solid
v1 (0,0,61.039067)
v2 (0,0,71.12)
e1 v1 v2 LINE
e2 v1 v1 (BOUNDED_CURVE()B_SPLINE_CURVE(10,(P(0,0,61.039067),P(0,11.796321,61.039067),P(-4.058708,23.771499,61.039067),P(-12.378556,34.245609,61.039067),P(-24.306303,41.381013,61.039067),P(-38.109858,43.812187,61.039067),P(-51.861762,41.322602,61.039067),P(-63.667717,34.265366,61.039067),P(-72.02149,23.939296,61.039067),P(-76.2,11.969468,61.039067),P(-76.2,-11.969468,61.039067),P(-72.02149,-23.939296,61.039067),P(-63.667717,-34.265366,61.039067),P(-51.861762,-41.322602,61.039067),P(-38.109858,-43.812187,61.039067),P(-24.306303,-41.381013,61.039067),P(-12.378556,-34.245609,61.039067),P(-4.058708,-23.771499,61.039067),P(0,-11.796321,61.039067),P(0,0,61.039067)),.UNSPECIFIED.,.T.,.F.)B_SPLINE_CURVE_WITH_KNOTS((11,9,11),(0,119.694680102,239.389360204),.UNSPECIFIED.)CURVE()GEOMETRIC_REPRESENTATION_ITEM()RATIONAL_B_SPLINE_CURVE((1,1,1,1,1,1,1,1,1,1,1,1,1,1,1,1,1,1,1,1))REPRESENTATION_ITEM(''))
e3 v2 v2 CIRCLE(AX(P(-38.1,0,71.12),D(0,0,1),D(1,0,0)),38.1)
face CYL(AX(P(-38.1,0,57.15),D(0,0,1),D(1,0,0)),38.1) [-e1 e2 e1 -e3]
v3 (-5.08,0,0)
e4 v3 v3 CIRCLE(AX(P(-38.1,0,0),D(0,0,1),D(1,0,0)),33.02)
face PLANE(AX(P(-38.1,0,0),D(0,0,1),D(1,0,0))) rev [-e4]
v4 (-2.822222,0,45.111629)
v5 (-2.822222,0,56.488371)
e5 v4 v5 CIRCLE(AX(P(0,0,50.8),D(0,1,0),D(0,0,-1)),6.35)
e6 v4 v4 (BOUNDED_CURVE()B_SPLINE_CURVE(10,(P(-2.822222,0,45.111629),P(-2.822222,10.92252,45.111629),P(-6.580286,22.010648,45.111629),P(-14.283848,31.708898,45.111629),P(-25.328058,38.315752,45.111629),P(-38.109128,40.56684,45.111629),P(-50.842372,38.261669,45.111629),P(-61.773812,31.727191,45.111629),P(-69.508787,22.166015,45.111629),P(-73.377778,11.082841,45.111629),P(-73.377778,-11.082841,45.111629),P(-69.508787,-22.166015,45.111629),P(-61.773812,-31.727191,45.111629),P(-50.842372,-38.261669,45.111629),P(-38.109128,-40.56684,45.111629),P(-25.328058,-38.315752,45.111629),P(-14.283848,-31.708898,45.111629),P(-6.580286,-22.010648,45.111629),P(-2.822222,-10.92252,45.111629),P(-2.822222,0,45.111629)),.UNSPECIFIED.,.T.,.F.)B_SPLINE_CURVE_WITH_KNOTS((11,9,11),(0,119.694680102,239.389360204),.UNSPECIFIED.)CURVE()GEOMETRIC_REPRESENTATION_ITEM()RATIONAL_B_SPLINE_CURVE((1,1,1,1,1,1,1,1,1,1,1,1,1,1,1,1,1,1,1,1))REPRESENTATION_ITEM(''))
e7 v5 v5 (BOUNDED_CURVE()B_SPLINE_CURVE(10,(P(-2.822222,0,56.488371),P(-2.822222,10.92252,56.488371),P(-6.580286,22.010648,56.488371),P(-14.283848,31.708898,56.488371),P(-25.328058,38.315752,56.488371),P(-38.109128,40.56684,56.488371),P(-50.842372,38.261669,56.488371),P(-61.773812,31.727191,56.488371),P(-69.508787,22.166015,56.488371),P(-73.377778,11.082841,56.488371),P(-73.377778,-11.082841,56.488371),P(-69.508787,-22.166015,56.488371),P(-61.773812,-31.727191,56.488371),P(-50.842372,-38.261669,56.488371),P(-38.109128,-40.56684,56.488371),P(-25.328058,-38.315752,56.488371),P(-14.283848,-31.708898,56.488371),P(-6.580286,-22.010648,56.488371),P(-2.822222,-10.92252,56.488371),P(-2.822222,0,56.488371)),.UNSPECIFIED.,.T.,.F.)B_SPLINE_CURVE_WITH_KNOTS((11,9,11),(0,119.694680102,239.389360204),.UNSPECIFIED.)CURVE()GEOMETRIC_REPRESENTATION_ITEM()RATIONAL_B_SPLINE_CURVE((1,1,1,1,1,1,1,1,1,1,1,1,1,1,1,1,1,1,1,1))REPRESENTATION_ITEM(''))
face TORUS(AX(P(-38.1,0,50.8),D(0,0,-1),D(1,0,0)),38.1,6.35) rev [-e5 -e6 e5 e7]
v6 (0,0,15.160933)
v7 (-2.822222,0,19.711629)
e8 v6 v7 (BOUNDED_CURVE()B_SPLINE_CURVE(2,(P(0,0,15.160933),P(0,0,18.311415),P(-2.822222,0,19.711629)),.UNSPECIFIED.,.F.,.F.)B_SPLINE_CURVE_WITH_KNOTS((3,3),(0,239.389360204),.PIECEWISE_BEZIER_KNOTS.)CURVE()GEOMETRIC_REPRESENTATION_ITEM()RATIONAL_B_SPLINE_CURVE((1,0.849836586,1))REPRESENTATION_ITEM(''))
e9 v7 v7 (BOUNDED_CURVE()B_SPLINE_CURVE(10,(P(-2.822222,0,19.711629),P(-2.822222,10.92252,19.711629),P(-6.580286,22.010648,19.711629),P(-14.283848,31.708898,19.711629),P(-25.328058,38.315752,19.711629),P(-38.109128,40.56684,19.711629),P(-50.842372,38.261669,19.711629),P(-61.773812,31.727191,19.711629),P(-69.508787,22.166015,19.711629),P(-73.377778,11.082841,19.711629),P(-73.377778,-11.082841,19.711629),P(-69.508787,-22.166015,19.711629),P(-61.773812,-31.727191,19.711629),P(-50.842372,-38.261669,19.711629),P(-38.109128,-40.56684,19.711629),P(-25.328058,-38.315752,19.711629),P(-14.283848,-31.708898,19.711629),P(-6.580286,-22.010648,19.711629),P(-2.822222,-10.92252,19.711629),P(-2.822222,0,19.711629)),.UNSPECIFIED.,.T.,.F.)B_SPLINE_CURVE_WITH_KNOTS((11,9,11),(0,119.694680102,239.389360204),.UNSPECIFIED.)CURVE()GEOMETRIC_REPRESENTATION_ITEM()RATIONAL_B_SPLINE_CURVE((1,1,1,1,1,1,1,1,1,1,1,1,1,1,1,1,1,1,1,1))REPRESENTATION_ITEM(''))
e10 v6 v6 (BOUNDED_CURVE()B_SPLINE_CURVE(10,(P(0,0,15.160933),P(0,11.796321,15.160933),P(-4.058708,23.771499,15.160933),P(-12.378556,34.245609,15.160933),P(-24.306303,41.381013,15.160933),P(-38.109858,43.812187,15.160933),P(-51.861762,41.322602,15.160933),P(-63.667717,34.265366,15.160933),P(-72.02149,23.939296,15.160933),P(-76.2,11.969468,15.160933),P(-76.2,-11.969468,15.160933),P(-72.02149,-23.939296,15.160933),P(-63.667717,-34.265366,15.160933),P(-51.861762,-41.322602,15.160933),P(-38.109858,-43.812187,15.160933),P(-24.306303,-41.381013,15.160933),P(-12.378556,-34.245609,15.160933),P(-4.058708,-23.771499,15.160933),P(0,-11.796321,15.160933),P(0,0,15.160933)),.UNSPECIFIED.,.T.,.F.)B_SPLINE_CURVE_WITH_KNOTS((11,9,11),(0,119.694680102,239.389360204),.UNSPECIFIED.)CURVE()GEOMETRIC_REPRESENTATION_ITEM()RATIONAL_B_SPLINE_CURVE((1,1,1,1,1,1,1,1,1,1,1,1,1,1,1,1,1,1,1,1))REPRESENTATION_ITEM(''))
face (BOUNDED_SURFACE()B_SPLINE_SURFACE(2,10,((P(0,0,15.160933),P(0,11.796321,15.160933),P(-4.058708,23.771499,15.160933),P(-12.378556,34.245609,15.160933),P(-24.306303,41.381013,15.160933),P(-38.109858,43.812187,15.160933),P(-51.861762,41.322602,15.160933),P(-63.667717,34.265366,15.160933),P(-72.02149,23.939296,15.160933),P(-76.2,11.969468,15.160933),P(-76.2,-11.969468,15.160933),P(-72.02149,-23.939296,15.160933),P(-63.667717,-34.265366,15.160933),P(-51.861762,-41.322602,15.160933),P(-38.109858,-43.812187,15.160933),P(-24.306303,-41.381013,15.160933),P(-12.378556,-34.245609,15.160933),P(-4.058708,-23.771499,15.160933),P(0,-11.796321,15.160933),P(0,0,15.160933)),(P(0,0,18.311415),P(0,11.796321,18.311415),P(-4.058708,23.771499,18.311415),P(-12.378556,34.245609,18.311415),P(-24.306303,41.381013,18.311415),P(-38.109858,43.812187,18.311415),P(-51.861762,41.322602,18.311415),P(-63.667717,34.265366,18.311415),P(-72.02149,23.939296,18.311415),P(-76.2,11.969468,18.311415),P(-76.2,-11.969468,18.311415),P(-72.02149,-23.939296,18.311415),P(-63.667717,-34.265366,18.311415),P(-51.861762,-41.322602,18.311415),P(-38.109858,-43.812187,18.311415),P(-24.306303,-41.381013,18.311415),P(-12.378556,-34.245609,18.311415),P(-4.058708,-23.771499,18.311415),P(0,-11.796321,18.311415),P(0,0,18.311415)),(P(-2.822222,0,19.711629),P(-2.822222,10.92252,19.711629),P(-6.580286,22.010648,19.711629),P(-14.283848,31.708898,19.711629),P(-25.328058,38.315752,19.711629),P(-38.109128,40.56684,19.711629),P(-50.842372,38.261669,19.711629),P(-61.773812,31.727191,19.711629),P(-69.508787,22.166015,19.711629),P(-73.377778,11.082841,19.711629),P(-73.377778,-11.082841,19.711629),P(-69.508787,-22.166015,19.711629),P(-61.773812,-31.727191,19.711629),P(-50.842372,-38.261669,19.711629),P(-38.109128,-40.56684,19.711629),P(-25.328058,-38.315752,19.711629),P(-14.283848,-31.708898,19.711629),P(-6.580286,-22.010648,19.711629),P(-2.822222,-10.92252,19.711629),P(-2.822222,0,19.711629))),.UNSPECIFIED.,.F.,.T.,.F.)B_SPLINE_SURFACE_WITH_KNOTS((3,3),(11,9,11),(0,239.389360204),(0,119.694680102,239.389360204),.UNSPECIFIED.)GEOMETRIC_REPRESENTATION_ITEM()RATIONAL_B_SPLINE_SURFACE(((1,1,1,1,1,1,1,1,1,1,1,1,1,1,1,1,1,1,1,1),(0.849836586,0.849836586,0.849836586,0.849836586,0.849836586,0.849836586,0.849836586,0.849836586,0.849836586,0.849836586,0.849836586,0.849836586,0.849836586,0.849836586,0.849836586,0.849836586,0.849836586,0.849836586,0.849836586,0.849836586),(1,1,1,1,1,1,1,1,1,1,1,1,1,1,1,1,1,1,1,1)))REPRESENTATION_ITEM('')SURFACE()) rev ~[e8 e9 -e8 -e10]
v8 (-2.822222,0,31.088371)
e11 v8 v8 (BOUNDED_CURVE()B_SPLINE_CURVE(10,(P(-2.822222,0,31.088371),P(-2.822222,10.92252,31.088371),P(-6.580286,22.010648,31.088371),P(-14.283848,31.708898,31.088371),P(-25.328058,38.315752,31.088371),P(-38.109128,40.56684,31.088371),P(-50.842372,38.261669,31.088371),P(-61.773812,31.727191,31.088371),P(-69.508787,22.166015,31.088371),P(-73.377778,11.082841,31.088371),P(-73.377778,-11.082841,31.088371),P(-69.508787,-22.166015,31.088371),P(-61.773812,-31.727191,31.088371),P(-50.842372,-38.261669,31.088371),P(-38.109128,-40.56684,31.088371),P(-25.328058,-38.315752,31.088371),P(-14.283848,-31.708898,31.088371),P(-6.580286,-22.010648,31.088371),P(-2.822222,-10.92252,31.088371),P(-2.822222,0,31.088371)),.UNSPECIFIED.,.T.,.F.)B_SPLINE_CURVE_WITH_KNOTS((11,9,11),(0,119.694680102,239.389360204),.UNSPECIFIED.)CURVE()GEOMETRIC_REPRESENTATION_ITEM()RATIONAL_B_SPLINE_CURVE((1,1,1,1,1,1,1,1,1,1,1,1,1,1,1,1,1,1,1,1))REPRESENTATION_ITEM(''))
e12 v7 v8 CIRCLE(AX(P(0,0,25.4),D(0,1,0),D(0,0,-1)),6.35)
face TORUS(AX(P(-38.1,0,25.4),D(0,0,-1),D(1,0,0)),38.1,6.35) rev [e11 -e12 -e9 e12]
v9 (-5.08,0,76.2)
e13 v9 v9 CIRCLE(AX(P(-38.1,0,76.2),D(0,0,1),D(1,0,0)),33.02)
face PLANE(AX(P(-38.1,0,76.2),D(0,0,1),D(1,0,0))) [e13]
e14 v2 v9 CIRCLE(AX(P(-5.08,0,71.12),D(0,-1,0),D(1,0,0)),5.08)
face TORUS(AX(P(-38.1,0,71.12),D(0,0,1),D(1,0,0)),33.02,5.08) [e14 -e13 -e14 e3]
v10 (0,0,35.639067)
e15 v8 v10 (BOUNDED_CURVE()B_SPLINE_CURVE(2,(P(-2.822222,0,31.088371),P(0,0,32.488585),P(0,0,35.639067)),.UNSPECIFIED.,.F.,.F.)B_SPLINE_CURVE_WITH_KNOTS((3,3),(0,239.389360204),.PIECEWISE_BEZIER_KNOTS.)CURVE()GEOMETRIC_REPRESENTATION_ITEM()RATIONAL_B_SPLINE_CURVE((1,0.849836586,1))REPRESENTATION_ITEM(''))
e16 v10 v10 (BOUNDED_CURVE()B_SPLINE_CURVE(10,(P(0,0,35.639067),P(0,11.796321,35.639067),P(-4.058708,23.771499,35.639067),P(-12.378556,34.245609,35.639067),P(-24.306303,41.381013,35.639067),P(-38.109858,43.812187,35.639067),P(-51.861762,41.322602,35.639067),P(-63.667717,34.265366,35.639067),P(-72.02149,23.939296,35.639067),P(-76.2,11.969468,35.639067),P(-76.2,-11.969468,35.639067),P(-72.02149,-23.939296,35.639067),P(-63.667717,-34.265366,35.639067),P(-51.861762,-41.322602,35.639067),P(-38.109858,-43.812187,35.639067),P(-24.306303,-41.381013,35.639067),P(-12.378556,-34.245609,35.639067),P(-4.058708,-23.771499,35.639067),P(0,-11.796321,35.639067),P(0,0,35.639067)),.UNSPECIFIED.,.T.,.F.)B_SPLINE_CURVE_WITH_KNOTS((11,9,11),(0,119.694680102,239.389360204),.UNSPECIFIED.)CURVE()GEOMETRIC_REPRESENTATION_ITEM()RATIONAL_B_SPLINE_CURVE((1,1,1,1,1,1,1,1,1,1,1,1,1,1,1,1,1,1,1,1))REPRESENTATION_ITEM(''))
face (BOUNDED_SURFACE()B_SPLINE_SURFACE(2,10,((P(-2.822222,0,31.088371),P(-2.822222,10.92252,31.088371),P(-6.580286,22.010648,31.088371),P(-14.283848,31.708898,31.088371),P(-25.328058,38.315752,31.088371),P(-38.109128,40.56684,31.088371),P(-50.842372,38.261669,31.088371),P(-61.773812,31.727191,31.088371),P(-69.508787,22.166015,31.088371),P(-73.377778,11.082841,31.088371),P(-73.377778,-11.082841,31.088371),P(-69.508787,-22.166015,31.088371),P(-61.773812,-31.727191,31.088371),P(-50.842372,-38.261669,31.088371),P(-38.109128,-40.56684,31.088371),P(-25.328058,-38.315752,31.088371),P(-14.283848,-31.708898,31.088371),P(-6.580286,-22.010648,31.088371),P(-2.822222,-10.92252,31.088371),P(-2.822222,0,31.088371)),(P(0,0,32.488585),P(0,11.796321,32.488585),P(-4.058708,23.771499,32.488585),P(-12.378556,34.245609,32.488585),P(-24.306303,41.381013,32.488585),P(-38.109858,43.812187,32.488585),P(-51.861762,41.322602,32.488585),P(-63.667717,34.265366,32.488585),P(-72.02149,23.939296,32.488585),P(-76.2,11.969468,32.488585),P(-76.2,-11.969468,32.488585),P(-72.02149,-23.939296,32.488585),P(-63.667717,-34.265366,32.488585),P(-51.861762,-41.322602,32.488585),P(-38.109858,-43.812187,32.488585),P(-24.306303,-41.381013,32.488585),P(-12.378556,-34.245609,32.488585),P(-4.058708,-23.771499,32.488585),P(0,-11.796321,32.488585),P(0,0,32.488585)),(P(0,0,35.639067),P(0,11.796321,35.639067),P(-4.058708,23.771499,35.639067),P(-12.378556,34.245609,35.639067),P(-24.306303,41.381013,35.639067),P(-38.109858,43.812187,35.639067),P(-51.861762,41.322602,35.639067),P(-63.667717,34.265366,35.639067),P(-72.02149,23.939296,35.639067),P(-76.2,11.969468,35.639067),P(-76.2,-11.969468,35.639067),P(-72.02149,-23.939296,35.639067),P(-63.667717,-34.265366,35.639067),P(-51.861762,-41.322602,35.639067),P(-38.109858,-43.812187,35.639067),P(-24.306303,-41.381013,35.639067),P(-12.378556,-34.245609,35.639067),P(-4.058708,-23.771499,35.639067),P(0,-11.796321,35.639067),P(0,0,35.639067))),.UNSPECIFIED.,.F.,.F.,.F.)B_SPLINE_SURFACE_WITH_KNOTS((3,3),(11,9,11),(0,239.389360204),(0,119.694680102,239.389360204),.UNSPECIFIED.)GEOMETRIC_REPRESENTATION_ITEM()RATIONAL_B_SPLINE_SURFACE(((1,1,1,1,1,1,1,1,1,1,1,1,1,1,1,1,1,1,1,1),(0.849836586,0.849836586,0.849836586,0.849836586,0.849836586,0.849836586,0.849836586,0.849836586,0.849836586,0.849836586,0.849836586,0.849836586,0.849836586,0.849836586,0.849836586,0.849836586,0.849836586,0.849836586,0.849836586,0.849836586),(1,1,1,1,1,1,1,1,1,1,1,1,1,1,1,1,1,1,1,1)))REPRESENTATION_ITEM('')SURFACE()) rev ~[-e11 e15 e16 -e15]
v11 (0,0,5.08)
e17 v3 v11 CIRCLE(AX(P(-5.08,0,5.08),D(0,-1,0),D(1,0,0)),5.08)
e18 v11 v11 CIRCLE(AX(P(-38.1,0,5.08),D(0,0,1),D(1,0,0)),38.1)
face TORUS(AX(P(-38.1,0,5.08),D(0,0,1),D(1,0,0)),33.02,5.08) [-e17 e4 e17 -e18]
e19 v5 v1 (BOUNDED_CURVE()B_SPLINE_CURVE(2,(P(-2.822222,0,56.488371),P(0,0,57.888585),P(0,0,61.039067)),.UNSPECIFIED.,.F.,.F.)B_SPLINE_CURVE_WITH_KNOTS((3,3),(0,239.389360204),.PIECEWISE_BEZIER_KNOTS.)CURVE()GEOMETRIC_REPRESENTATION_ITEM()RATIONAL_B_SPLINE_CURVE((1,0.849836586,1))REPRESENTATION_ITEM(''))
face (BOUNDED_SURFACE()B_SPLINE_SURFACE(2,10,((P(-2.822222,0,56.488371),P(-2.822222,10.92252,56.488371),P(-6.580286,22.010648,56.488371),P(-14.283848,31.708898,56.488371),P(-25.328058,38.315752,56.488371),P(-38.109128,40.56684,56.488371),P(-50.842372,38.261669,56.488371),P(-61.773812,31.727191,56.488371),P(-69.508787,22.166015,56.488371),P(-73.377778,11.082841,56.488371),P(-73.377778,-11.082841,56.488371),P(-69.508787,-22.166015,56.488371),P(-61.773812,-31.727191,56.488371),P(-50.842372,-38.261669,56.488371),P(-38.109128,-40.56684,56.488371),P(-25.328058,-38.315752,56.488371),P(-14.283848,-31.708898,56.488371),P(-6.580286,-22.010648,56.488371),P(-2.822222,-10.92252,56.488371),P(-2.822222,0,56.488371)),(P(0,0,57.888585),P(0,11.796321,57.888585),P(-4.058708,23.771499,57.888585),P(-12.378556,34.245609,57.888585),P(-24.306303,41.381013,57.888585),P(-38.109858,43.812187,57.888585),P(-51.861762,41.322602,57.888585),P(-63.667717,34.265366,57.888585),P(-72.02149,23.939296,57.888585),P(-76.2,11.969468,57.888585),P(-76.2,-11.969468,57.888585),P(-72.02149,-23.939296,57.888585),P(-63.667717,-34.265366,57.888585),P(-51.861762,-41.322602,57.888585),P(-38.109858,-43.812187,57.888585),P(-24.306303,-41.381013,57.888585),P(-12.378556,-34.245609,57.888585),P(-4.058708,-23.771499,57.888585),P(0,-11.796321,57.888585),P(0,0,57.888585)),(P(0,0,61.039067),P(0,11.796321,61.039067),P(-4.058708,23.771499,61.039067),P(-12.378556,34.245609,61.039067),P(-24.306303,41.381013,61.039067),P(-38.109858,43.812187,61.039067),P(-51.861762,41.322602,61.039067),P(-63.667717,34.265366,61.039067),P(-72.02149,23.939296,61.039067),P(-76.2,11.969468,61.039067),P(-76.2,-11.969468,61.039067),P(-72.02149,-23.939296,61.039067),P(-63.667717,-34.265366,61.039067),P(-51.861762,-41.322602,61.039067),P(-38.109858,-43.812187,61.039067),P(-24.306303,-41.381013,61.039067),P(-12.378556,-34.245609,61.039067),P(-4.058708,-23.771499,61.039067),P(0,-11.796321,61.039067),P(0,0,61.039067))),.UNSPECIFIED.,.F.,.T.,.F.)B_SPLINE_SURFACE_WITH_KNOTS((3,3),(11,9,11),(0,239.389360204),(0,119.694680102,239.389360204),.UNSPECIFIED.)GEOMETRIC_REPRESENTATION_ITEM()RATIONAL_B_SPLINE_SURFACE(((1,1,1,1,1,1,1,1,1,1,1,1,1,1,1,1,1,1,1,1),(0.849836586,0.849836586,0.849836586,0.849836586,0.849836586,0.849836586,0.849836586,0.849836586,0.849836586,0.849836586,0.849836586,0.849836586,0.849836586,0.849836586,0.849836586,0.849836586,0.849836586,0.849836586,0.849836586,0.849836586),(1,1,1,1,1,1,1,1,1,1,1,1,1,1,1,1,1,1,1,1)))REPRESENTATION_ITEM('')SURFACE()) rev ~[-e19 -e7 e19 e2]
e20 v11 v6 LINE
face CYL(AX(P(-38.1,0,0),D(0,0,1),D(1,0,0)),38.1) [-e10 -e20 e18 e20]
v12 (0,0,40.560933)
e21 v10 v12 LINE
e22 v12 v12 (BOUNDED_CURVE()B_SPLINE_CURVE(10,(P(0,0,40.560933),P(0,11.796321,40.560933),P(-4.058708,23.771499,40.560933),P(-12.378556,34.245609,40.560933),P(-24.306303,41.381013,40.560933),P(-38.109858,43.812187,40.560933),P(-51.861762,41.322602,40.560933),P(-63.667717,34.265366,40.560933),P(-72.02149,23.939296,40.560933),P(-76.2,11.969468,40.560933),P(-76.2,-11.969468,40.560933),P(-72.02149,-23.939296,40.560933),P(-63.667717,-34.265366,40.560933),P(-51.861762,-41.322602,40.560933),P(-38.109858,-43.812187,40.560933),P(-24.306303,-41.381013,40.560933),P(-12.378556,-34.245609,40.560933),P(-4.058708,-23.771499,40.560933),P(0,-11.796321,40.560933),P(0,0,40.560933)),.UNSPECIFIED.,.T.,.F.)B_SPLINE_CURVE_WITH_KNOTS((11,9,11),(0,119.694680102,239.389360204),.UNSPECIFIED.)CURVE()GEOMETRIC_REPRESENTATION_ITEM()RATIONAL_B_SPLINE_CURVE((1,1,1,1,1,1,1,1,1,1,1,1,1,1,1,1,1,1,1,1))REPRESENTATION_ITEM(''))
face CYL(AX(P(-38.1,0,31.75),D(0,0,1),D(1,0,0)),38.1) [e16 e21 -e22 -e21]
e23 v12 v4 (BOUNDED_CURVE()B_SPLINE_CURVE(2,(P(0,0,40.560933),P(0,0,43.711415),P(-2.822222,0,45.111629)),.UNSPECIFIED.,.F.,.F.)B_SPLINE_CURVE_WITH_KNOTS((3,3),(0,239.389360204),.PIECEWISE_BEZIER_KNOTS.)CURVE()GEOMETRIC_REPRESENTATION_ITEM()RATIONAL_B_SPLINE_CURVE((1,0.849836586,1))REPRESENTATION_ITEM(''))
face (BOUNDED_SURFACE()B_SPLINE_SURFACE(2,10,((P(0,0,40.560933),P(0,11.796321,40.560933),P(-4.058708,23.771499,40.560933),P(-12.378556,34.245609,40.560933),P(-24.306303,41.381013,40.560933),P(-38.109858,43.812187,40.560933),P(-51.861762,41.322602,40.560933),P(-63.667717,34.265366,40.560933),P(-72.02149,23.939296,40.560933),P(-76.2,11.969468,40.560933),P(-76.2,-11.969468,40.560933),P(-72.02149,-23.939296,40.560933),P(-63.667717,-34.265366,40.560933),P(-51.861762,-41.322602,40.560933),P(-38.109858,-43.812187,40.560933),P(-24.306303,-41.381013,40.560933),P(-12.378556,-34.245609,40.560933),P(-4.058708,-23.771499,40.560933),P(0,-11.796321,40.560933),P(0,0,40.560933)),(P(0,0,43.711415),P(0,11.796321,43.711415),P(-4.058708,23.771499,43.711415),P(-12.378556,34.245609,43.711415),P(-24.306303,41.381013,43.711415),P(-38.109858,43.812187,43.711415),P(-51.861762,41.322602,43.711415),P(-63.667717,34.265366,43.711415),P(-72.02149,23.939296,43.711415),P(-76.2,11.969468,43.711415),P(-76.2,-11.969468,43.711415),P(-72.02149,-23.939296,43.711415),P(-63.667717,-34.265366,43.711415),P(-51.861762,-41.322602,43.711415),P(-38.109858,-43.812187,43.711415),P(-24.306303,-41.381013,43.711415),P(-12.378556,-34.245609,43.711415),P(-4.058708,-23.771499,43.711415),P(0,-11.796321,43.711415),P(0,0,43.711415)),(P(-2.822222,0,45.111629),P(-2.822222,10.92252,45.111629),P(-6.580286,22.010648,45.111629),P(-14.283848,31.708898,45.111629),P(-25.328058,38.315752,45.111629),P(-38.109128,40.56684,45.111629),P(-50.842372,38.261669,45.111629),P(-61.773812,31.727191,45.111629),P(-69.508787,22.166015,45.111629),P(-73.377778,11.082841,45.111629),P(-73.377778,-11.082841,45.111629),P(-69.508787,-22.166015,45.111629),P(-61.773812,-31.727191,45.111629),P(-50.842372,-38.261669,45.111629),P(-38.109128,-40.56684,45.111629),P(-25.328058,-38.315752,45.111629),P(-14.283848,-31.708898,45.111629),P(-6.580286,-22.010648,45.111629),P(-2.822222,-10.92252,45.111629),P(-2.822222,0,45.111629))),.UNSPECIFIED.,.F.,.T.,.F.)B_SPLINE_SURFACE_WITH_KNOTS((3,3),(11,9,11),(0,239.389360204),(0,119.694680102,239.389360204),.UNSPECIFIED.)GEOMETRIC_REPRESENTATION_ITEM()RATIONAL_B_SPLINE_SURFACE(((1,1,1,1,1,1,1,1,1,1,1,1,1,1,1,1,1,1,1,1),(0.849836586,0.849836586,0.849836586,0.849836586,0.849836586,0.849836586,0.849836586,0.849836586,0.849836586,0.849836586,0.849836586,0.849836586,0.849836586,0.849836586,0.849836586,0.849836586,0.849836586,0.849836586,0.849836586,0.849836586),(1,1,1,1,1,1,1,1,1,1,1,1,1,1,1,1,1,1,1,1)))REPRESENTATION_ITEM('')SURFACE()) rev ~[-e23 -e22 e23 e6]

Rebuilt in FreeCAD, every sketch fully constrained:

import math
import FreeCAD as App
import Part
import Sketcher

V = App.Vector
Q = App.Units.Quantity


def edges_at(feature, points):
    """Names of the edges that pass closest to the given points."""
    edges = feature.Shape.Edges
    near = lambda p: min(range(len(edges)), key=lambda i: edges[i].distToShape(Part.Vertex(*p))[0])
    return sorted({f"Edge{near(p) + 1}" for p in points})

doc = App.newDocument("Part")
body = doc.addObject("PartDesign::Body", "Body")

sketch1 = body.newObject("Sketcher::SketchObject", "Sketch")
sketch1.AttachmentSupport = (doc.getObject("XZ_Plane"), [""])
sketch1.MapMode = "FlatFace"
sketch1.addGeometry([
    Part.LineSegment(V(-38, 0, 0), V(0, 0, 0)),
    Part.LineSegment(V(0, 0, 0), V(0, 19, 0)),
    Part.ArcOfCircle(Part.Circle(V(0, 25, 0), V(0, 0, 1), 6), math.radians(90), math.radians(270)),
    Part.LineSegment(V(0, 32, 0), V(0, 44, 0)),
    Part.ArcOfCircle(Part.Circle(V(0, 51, 0), V(0, 0, 1), 6), math.radians(90), math.radians(270)),
    Part.LineSegment(V(0, 57, 0), V(0, 76, 0)),
    Part.LineSegment(V(0, 76, 0), V(-38, 76, 0)),
    Part.LineSegment(V(-38, 76, 0), V(-38, 0, 0)),
], False)
sketch1.addGeometry(Part.LineSegment(V(-38, 0, 0), V(-38, 76, 0)), True)
sketch1.addConstraint([
    Sketcher.Constraint("Coincident", 0, 2, 1, 1),
    Sketcher.Constraint("Coincident", 1, 2, 2, 2),
    Sketcher.Constraint("Coincident", 2, 1, 3, 1),
    Sketcher.Constraint("Coincident", 3, 2, 4, 2),
    Sketcher.Constraint("Coincident", 4, 1, 5, 1),
    Sketcher.Constraint("Coincident", 5, 2, 6, 1),
    Sketcher.Constraint("Coincident", 6, 2, 7, 1),
    Sketcher.Constraint("Coincident", 7, 2, 0, 1),
    Sketcher.Constraint("Horizontal", 0),
    Sketcher.Constraint("Vertical", 1),
    Sketcher.Constraint("Vertical", 3),
    Sketcher.Constraint("Vertical", 5),
    Sketcher.Constraint("Horizontal", 6),
    Sketcher.Constraint("Vertical", 7),
    Sketcher.Constraint("Vertical", 8),
    Sketcher.Constraint("Coincident", 0, 2, -1, 1),
    Sketcher.Constraint("Coincident", 8, 1, 7, 2),
    Sketcher.Constraint("Equal", 2, 4),
    Sketcher.Constraint("PointOnObject", 2, 3, -2),
    Sketcher.Constraint("PointOnObject", 4, 3, -2),
    Sketcher.Constraint("PointOnObject", 2, 1, -2),
    Sketcher.Constraint("PointOnObject", 4, 1, -2),
    Sketcher.Constraint("Horizontal", 5, 2, 8, 2),
    Sketcher.Constraint("Equal", 1, 5),
    Sketcher.Constraint("DistanceY", 7, 2, 7, 1, Q("3 in")),
    Sketcher.Constraint("Radius", 2, Q("0.25 in")),
    Sketcher.Constraint("DistanceX", 0, 1, 0, 2, Q("1.5 in")),
    Sketcher.Constraint("DistanceY", 3, 1, 3, 2, Q("0.5 in")),
])
revolution = body.newObject("PartDesign::Revolution", "Revolution")
revolution.Profile = sketch1
revolution.ReferenceAxis = (sketch1, ["Axis0"])
revolution.Angle = 360
doc.recompute()

fillet = body.newObject("PartDesign::Fillet", "Fillet")
fillet.Base = (revolution, edges_at(revolution, [
    (-76.2, 0, 57.15),
    (-76.2, 0, 76.2),
    (-76.2, 0, 44.45),
    (-76.2, 0, 31.75),
    (-76.2, 0, 19.05),
    (-76.2, 0, 0),
]))
fillet.Radius = Q("0.2 in")

doc.recompute()
